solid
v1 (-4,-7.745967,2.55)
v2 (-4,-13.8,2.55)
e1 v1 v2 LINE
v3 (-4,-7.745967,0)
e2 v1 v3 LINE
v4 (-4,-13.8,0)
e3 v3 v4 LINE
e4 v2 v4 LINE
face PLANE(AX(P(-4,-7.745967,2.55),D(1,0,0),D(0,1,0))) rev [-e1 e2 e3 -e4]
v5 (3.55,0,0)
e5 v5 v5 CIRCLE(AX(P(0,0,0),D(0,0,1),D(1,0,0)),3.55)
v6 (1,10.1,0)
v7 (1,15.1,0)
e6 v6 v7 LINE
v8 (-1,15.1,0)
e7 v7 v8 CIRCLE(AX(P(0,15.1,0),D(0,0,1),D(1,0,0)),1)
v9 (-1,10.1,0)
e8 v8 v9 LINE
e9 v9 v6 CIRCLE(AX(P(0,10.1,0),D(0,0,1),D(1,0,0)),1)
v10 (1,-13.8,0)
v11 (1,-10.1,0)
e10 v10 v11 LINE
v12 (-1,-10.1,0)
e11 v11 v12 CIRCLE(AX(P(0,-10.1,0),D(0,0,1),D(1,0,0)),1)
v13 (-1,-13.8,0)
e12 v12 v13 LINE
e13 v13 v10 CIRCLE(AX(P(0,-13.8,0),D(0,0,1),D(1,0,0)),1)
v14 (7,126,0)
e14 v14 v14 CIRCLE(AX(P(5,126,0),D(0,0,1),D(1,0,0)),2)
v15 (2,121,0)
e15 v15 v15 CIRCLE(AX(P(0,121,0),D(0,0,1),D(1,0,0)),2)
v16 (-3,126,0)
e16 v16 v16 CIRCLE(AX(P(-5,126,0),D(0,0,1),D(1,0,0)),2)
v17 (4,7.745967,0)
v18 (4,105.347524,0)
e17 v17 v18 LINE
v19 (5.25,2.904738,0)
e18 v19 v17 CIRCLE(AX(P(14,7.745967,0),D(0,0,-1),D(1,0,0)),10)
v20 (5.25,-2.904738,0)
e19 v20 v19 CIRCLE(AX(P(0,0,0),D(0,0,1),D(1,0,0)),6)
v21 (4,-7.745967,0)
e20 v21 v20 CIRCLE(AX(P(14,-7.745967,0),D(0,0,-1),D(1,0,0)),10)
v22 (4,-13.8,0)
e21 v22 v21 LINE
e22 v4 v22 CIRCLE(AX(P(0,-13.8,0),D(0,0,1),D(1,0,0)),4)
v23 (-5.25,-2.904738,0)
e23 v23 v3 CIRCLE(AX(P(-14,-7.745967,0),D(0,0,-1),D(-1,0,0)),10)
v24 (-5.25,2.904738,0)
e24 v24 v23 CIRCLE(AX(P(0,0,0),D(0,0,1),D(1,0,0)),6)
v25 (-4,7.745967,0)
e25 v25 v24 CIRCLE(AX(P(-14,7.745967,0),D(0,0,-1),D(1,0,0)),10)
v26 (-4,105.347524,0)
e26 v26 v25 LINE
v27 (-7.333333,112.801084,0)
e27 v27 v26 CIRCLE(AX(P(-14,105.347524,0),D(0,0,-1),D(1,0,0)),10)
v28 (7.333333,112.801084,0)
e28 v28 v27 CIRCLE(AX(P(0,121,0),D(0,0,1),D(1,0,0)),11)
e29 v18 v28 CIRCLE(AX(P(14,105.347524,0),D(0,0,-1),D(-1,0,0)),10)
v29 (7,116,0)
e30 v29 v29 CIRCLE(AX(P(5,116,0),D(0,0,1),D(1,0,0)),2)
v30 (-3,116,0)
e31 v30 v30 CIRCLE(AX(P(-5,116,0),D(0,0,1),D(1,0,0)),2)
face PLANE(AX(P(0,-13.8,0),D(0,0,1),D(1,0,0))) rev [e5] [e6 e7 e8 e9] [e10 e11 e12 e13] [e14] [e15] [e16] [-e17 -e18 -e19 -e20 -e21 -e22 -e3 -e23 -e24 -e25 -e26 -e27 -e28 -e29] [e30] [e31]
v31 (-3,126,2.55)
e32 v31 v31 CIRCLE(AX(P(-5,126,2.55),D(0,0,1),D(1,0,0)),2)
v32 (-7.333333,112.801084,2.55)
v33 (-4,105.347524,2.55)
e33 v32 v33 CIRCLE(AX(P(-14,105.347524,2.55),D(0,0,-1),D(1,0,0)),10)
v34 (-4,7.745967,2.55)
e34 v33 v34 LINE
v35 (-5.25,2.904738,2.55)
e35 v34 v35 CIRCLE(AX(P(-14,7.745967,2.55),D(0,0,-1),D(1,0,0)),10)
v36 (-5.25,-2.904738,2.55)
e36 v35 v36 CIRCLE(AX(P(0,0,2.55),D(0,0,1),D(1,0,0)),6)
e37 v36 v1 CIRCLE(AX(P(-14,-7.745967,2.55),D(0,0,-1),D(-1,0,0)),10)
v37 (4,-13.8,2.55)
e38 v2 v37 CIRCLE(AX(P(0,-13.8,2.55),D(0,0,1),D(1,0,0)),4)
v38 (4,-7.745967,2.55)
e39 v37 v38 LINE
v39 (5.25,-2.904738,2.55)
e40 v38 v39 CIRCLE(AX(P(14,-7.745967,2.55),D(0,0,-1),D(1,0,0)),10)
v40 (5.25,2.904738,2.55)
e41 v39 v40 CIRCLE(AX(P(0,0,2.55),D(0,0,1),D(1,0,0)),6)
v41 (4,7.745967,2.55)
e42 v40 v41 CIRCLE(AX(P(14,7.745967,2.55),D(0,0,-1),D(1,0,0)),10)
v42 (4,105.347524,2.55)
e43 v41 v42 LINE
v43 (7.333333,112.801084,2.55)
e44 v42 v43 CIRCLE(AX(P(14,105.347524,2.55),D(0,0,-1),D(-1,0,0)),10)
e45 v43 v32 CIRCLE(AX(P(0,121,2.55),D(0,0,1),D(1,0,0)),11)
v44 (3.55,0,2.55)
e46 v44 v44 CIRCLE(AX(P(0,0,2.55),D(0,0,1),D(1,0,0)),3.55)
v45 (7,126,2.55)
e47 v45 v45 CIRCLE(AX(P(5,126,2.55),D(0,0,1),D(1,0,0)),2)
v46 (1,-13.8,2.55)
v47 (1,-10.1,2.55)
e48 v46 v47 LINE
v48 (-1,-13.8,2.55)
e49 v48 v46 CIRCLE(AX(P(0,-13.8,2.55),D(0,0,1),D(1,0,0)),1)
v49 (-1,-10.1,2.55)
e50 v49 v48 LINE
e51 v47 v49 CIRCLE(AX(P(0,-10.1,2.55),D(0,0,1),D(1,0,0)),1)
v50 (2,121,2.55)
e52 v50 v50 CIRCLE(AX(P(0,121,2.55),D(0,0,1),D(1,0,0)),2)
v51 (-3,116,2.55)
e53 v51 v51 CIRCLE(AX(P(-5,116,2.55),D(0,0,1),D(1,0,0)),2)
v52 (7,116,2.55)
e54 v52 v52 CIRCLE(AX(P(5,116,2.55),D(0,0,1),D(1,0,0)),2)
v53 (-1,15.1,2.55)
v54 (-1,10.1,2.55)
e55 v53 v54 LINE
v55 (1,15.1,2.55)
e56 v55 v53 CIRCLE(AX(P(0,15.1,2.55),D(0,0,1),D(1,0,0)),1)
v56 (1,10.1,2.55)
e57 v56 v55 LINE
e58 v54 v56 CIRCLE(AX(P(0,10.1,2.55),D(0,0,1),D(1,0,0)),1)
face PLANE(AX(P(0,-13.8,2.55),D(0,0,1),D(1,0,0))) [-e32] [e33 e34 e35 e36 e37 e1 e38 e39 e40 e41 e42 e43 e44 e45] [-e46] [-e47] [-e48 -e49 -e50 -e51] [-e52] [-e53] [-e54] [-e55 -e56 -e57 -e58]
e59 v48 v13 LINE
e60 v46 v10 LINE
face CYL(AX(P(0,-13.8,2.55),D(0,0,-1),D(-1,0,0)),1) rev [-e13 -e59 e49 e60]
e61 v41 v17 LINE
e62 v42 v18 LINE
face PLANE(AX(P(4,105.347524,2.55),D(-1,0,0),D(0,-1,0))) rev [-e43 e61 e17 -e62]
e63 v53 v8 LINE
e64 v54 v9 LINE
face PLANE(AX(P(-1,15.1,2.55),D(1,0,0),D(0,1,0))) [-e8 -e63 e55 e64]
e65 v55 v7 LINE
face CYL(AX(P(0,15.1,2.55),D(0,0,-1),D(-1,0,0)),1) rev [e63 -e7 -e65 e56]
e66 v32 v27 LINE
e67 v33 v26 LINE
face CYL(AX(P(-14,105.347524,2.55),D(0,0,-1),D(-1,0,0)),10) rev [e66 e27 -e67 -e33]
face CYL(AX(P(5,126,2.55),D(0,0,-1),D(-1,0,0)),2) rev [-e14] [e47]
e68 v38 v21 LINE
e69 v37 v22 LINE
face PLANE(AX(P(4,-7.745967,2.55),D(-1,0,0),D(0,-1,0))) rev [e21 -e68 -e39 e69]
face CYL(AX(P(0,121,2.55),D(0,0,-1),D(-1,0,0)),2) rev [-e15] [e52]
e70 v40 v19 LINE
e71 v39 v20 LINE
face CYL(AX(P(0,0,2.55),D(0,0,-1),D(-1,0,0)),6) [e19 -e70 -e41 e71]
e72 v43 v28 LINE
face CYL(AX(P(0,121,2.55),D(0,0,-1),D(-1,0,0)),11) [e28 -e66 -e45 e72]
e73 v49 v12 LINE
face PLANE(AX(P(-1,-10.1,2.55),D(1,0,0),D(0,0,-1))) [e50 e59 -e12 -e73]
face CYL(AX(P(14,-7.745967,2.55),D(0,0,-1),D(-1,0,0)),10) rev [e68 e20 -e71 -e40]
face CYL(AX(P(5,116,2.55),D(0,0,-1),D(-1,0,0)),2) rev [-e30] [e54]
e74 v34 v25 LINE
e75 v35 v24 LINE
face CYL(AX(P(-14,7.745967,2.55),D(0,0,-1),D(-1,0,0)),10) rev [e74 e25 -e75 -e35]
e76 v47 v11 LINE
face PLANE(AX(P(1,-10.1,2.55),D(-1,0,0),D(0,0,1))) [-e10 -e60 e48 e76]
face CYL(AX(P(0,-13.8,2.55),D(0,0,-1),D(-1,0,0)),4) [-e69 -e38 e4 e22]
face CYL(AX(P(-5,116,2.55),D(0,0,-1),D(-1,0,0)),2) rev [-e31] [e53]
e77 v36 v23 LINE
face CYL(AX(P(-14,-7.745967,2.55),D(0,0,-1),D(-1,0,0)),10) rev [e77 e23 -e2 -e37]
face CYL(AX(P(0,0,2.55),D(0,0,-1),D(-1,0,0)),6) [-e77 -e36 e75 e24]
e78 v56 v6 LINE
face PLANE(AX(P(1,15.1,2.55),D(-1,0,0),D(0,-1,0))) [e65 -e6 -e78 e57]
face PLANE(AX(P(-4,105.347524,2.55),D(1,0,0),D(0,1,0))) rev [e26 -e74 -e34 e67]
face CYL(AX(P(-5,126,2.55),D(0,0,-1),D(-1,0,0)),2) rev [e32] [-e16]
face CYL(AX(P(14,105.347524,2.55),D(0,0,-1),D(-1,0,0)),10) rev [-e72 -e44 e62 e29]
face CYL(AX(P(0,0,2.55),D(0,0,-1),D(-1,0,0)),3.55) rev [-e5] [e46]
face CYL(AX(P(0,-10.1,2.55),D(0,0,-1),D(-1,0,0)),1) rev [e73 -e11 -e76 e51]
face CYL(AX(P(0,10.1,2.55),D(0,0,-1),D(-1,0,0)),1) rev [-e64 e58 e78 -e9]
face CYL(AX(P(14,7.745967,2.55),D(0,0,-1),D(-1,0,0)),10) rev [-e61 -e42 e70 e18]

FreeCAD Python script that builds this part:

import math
import FreeCAD as App
import Part
import Sketcher
Q = App.Units.Quantity

doc = App.newDocument("Part")
body = doc.addObject("PartDesign::Body", "Body")

# Sketch on XY plane
sketch1 = body.newObject("Sketcher::SketchObject", "Sketch")
sketch1.AttachmentSupport = (doc.getObject("XY_Plane"), [""])
sketch1.MapMode = "FlatFace"
sketch1.addGeometry([
    Part.LineSegment(App.Vector(-4, 105.3, 0), App.Vector(-4, 7.7, 0)),  # 0
    Part.ArcOfCircle(Part.Circle(App.Vector(-14, 7.7, 0), App.Vector(0, 0, 1), 10), math.radians(-29), math.radians(0)),  # 1
    Part.ArcOfCircle(Part.Circle(App.Vector(0, 0, 0), App.Vector(0, 0, 1), 6), math.radians(151), math.radians(209)),  # 2
    Part.ArcOfCircle(Part.Circle(App.Vector(-14, -7.7, 0), App.Vector(0, 0, 1), 10), math.radians(0), math.radians(29)),  # 3
    Part.LineSegment(App.Vector(-4, -7.7, 0), App.Vector(-4, -13.8, 0)),  # 4
    Part.ArcOfCircle(Part.Circle(App.Vector(0, -13.8, 0), App.Vector(0, 0, 1), 4), math.radians(180), math.radians(360)),  # 5
    Part.LineSegment(App.Vector(4, -13.8, 0), App.Vector(4, -7.7, 0)),  # 6
    Part.ArcOfCircle(Part.Circle(App.Vector(14, -7.7, 0), App.Vector(0, 0, 1), 10), math.radians(151), math.radians(180)),  # 7
    Part.ArcOfCircle(Part.Circle(App.Vector(0, 0, 0), App.Vector(0, 0, 1), 6), math.radians(-29), math.radians(29)),  # 8
    Part.ArcOfCircle(Part.Circle(App.Vector(14, 7.7, 0), App.Vector(0, 0, 1), 10), math.radians(180), math.radians(209)),  # 9
    Part.LineSegment(App.Vector(4, 7.7, 0), App.Vector(4, 105.3, 0)),  # 10
    Part.ArcOfCircle(Part.Circle(App.Vector(14, 105.3, 0), App.Vector(0, 0, 1), 10), math.radians(132), math.radians(180)),  # 11
    Part.ArcOfCircle(Part.Circle(App.Vector(0, 121, 0), App.Vector(0, 0, 1), 11), math.radians(-48), math.radians(228)),  # 12
    Part.ArcOfCircle(Part.Circle(App.Vector(-14, 105.3, 0), App.Vector(0, 0, 1), 10), math.radians(0), math.radians(48)),  # 13
    Part.LineSegment(App.Vector(-1, -13.8, 0), App.Vector(-1, -10.1, 0)),  # 14
    Part.ArcOfCircle(Part.Circle(App.Vector(0, -10.1, 0), App.Vector(0, 0, 1), 1), math.radians(0), math.radians(180)),  # 15
    Part.LineSegment(App.Vector(1, -10.1, 0), App.Vector(1, -13.8, 0)),  # 16
    Part.ArcOfCircle(Part.Circle(App.Vector(0, -13.8, 0), App.Vector(0, 0, 1), 1), math.radians(180), math.radians(360)),  # 17
    Part.Circle(App.Vector(0, 0, 0), App.Vector(0, 0, 1), 3.5),  # 18
    Part.LineSegment(App.Vector(-1, 10.1, 0), App.Vector(-1, 15.1, 0)),  # 19
    Part.ArcOfCircle(Part.Circle(App.Vector(0, 15.1, 0), App.Vector(0, 0, 1), 1), math.radians(0), math.radians(180)),  # 20
    Part.LineSegment(App.Vector(1, 15.1, 0), App.Vector(1, 10.1, 0)),  # 21
    Part.ArcOfCircle(Part.Circle(App.Vector(0, 10.1, 0), App.Vector(0, 0, 1), 1), math.radians(180), math.radians(360)),  # 22
    Part.Circle(App.Vector(-5, 116, 0), App.Vector(0, 0, 1), 2),  # 23
    Part.Circle(App.Vector(-5, 126, 0), App.Vector(0, 0, 1), 2),  # 24
    Part.Circle(App.Vector(0, 121, 0), App.Vector(0, 0, 1), 2),  # 25
    Part.Circle(App.Vector(5, 116, 0), App.Vector(0, 0, 1), 2),  # 26
    Part.Circle(App.Vector(5, 126, 0), App.Vector(0, 0, 1), 2),  # 27
], False)
sketch1.addConstraint([
    Sketcher.Constraint("Tangent", 0, 2, 1, 2),
    Sketcher.Constraint("Tangent", 1, 1, 2, 1),
    Sketcher.Constraint("Tangent", 2, 2, 3, 2),
    Sketcher.Constraint("Tangent", 3, 1, 4, 1),
    Sketcher.Constraint("Tangent", 4, 2, 5, 1),
    Sketcher.Constraint("Tangent", 5, 2, 6, 1),
    Sketcher.Constraint("Tangent", 6, 2, 7, 2),
    Sketcher.Constraint("Tangent", 7, 1, 8, 1),
    Sketcher.Constraint("Tangent", 8, 2, 9, 2),
    Sketcher.Constraint("Tangent", 9, 1, 10, 1),
    Sketcher.Constraint("Tangent", 10, 2, 11, 2),
    Sketcher.Constraint("Tangent", 11, 1, 12, 1),
    Sketcher.Constraint("Tangent", 12, 2, 13, 2),
    Sketcher.Constraint("Tangent", 13, 1, 0, 1),
    Sketcher.Constraint("Tangent", 14, 2, 15, 2),
    Sketcher.Constraint("Tangent", 15, 1, 16, 1),
    Sketcher.Constraint("Tangent", 16, 2, 17, 2),
    Sketcher.Constraint("Tangent", 17, 1, 14, 1),
    Sketcher.Constraint("Tangent", 19, 2, 20, 2),
    Sketcher.Constraint("Tangent", 20, 1, 21, 1),
    Sketcher.Constraint("Tangent", 21, 2, 22, 2),
    Sketcher.Constraint("Tangent", 22, 1, 19, 1),
    Sketcher.Constraint("Vertical", 0),
    Sketcher.Constraint("Vertical", 4),
    Sketcher.Constraint("Vertical", 6),
    Sketcher.Constraint("Vertical", 10),
    Sketcher.Constraint("Vertical", 14),
    Sketcher.Constraint("Vertical", 16),
    Sketcher.Constraint("Vertical", 19),
    Sketcher.Constraint("Vertical", 21),
    Sketcher.Constraint("Coincident", 2, 3, -1, 1),
    Sketcher.Constraint("Coincident", 8, 3, -1, 1),
    Sketcher.Constraint("Coincident", 18, 3, -1, 1),
    Sketcher.Constraint("Coincident", 17, 3, 5, 3),
    Sketcher.Constraint("Coincident", 25, 3, 12, 3),
    Sketcher.Constraint("Equal", 1, 3),
    Sketcher.Constraint("Equal", 3, 7),
    Sketcher.Constraint("Equal", 2, 8),
    Sketcher.Constraint("Equal", 7, 9),
    Sketcher.Constraint("Equal", 9, 11),
    Sketcher.Constraint("Equal", 11, 13),
    Sketcher.Constraint("Equal", 17, 20),
    Sketcher.Constraint("Equal", 23, 24),
    Sketcher.Constraint("Equal", 24, 25),
    Sketcher.Constraint("Equal", 25, 26),
    Sketcher.Constraint("Equal", 26, 27),
    Sketcher.Constraint("Symmetric", 15, 3, 22, 3, -1, 1),
    Sketcher.Constraint("Symmetric", 11, 3, 13, 3, -2),
    Sketcher.Constraint("Symmetric", 23, 3, 26, 3, -2),
    Sketcher.Constraint("Symmetric", 24, 3, 27, 3, -2),
    Sketcher.Constraint("PointOnObject", 5, 3, -2),
    Sketcher.Constraint("Vertical", 1, 3, 3, 3),
    Sketcher.Constraint("Vertical", 23, 3, 24, 3),
    Sketcher.Constraint("Diameter", 23, Q("4 mm")),
    Sketcher.Constraint("Radius", 1, Q("10 mm")),
    Sketcher.Constraint("Radius", 2, Q("6 mm")),
    Sketcher.Constraint("Radius", 5, Q("4 mm")),
    Sketcher.Constraint("Radius", 12, Q("11 mm")),
    Sketcher.Constraint("Radius", 15, Q("1 mm")),
    Sketcher.Constraint("Diameter", 18, Q("7.1 mm")),
    Sketcher.Constraint("DistanceY", 19, 1, 19, 2, Q("5 mm")),
    Sketcher.Constraint("DistanceY", 14, 1, 14, 2, Q("3.7 mm")),
    Sketcher.Constraint("DistanceY", -1, 1, 12, 3, Q("121 mm")),
    Sketcher.Constraint("DistanceX", 23, 3, -1, 1, Q("5 mm")),
    Sketcher.Constraint("DistanceY", -1, 1, 23, 3, Q("116 mm")),
    Sketcher.Constraint("DistanceY", -1, 1, 24, 3, Q("126 mm")),
    Sketcher.Constraint("DistanceY", 5, 3, -1, 1, Q("13.8 mm")),
])
pad1 = body.newObject("PartDesign::Pad", "Pad")
pad1.Profile = sketch1
pad1.Length = 2.55

doc.recompute()
